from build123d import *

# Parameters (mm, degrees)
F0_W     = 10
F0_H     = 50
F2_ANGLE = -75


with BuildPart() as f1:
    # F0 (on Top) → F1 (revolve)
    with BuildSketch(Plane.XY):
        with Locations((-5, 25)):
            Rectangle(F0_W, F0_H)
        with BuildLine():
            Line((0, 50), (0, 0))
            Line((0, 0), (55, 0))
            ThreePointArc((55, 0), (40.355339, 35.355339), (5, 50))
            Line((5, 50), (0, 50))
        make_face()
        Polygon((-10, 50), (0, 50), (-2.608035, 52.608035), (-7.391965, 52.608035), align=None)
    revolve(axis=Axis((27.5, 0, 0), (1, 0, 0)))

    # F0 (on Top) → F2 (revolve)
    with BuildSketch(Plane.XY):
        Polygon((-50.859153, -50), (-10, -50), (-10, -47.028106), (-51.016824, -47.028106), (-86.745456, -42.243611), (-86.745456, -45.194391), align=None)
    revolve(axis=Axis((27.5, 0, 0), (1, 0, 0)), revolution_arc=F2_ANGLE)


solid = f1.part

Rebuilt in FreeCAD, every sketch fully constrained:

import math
import FreeCAD as App
import Part
import Sketcher
from FreeCAD import Vector

doc = App.newDocument("Part")
body = doc.addObject("PartDesign::Body", "Body")

# Sketch on XY plane
sketch1 = body.newObject("Sketcher::SketchObject", "Sketch")
sketch1.AttachmentSupport = (doc.getObject("XY_Plane"), [""])
sketch1.MapMode = "FlatFace"
sketch1.addGeometry([
    Part.LineSegment(Vector(-10, 50, 0), Vector(-10, 0, 0)),  # 0
    Part.LineSegment(Vector(-10, 0, 0), Vector(55, 0, 0)),  # 1
    Part.ArcOfCircle(Part.Circle(Vector(5, 0, 0), Vector(0, 0, 1), 50), math.radians(0), math.radians(90)),  # 2
    Part.LineSegment(Vector(5, 50, 0), Vector(0, 50, 0)),  # 3
    Part.LineSegment(Vector(0, 50, 0), Vector(-2.608035, 52.608035, 0)),  # 4
    Part.LineSegment(Vector(-2.608035, 52.608035, 0), Vector(-7.391965, 52.608035, 0)),  # 5
    Part.LineSegment(Vector(-7.391965, 52.608035, 0), Vector(-10, 50, 0)),  # 6
], False)
sketch1.addConstraint([
    Sketcher.Constraint("Coincident", 0, 2, 1, 1),
    Sketcher.Constraint("Coincident", 1, 2, 2, 1),
    Sketcher.Constraint("Tangent", 2, 2, 3, 1),
    Sketcher.Constraint("Coincident", 3, 2, 4, 1),
    Sketcher.Constraint("Coincident", 4, 2, 5, 1),
    Sketcher.Constraint("Coincident", 5, 2, 6, 1),
    Sketcher.Constraint("Coincident", 6, 2, 0, 1),
    Sketcher.Constraint("Vertical", 0),
    Sketcher.Constraint("Horizontal", 1),
    Sketcher.Constraint("Horizontal", 3),
    Sketcher.Constraint("Horizontal", 5),
    Sketcher.Constraint("PointOnObject", 2, 3, -1),
    Sketcher.Constraint("PointOnObject", 0, 2, -1),
    Sketcher.Constraint("PointOnObject", 3, 2, -2),
    Sketcher.Constraint("Perpendicular", 4, 6),
    Sketcher.Constraint("Horizontal", 3, 2, 6, 2),
    Sketcher.Constraint("Equal", 4, 6),
    Sketcher.Constraint("Radius", 2, 50.0),
    Sketcher.Constraint("DistanceX", 1, 1, 1, 2, 65.0),
    Sketcher.Constraint("DistanceX", 3, 2, 3, 1, 5.0),
    Sketcher.Constraint("DistanceX", 5, 2, 5, 1, 4.78393),
])
revolution = body.newObject("PartDesign::Revolution", "Revolution")
revolution.Profile = sketch1
revolution.ReferenceAxis = (sketch1, ["H_Axis"])
revolution.Angle = 360

# Sketch on XY plane
sketch2 = body.newObject("Sketcher::SketchObject", "Sketch001")
sketch2.AttachmentSupport = (doc.getObject("XY_Plane"), [""])
sketch2.MapMode = "FlatFace"
sketch2.addGeometry([
    Part.LineSegment(Vector(-50.859153, -50, 0), Vector(-10, -50, 0)),  # 0
    Part.LineSegment(Vector(-10, -50, 0), Vector(-10, -47.028106, 0)),  # 1
    Part.LineSegment(Vector(-10, -47.028106, 0), Vector(-51.016824, -47.028106, 0)),  # 2
    Part.LineSegment(Vector(-51.016824, -47.028106, 0), Vector(-86.745456, -42.243611, 0)),  # 3
    Part.LineSegment(Vector(-86.745456, -42.243611, 0), Vector(-86.745456, -45.194391, 0)),  # 4
    Part.LineSegment(Vector(-86.745456, -45.194391, 0), Vector(-50.859153, -50, 0)),  # 5
], False)
sketch2.addConstraint([
    Sketcher.Constraint("Coincident", 0, 2, 1, 1),
    Sketcher.Constraint("Coincident", 1, 2, 2, 1),
    Sketcher.Constraint("Coincident", 2, 2, 3, 1),
    Sketcher.Constraint("Coincident", 3, 2, 4, 1),
    Sketcher.Constraint("Coincident", 4, 2, 5, 1),
    Sketcher.Constraint("Coincident", 5, 2, 0, 1),
    Sketcher.Constraint("Horizontal", 0),
    Sketcher.Constraint("Vertical", 1),
    Sketcher.Constraint("Horizontal", 2),
    Sketcher.Constraint("Vertical", 4),
    Sketcher.Constraint("Parallel", 3, 5),
    Sketcher.Constraint("DistanceX", 0, 2, -1, 1, 10.0),
    Sketcher.Constraint("DistanceY", 0, 2, -1, 1, 50.0),
    Sketcher.Constraint("DistanceY", 4, 2, 4, 1, 2.95078),
    Sketcher.Constraint("Distance", 3, 36.047559),
    Sketcher.Constraint("DistanceX", 0, 1, 0, 2, 40.859153),
    Sketcher.Constraint("DistanceX", 2, 2, 2, 1, 41.016824),
    Sketcher.Constraint("DistanceY", 3, 2, -1, 1, 42.243611),
])
revolution2 = body.newObject("PartDesign::Revolution", "Revolution001")
revolution2.Profile = sketch2
revolution2.ReferenceAxis = (sketch2, ["H_Axis"])
revolution2.Angle = 75
revolution2.Reversed = True

doc.recompute()
